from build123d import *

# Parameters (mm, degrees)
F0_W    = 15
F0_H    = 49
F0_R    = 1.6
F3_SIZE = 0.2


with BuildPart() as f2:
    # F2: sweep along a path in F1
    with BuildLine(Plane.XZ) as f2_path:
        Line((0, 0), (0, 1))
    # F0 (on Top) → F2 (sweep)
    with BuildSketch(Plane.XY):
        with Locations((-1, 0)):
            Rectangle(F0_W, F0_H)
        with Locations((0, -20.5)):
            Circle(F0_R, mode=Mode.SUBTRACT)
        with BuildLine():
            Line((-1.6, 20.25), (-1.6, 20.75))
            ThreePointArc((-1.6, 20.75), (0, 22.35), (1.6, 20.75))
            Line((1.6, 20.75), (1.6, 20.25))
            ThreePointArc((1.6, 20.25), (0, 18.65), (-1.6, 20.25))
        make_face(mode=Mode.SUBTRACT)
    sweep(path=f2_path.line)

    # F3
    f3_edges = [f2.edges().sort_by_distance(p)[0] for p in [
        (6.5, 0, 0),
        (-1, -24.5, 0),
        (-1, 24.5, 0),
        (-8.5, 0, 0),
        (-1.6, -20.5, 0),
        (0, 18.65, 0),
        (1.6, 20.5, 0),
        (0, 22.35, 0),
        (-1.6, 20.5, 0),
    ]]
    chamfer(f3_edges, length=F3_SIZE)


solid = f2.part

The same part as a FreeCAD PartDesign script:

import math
import FreeCAD as App
import Part
import Sketcher
Q = App.Units.Quantity


def edges_at(feature, points):
    """Names of the edges that pass closest to the given points."""
    edges = feature.Shape.Edges
    near = lambda p: min(range(len(edges)), key=lambda i: edges[i].distToShape(Part.Vertex(*p))[0])
    return sorted({f"Edge{near(p) + 1}" for p in points})


def add_polygon(sketch, points):
    """Adds a closed chain of lines whose ends are joined by coincident constraints."""
    first, n = sketch.GeometryCount, len(points)
    for a, b in zip(points, points[1:] + points[:1]):
        sketch.addGeometry(Part.LineSegment(App.Vector(*a, 0), App.Vector(*b, 0)), False)
    for i in range(n):
        sketch.addConstraint(Sketcher.Constraint("Coincident", first + i, 2, first + (i + 1) % n, 1))

doc = App.newDocument("Part")
body = doc.addObject("PartDesign::Body", "Body")

# Sketch on XY plane
sketch1 = body.newObject("Sketcher::SketchObject", "Sketch")
sketch1.AttachmentSupport = (doc.getObject("XY_Plane"), [""])
sketch1.MapMode = "FlatFace"
add_polygon(sketch1, [(-8.5, 24.5), (-8.5, -24.5), (6.5, -24.5), (6.5, 24.5)])  # lines 0-3
sketch1.addGeometry(Part.Circle(App.Vector(0, -20.5, 0), App.Vector(0, 0, 1), 1.6), False)  # 4
sketch1.addGeometry(Part.ArcOfCircle(Part.Circle(App.Vector(0, 20.2, 0), App.Vector(0, 0, 1), 1.6), math.radians(180), math.radians(360)), False)  # 5
sketch1.addGeometry(Part.LineSegment(App.Vector(-1.6, 20.2, 0), App.Vector(-1.6, 20.8, 0)), False)  # 6
sketch1.addGeometry(Part.ArcOfCircle(Part.Circle(App.Vector(0, 20.8, 0), App.Vector(0, 0, 1), 1.6), math.radians(0), math.radians(180)), False)  # 7
sketch1.addGeometry(Part.LineSegment(App.Vector(1.6, 20.8, 0), App.Vector(1.6, 20.2, 0)), False)  # 8
sketch1.addConstraint(Sketcher.Constraint("Tangent", 5, 1, 6, 1))
sketch1.addConstraint(Sketcher.Constraint("Tangent", 6, 2, 7, 2))
sketch1.addConstraint(Sketcher.Constraint("Tangent", 7, 1, 8, 1))
sketch1.addConstraint(Sketcher.Constraint("Tangent", 8, 2, 5, 2))
sketch1.addConstraint(Sketcher.Constraint("Vertical", 0))
sketch1.addConstraint(Sketcher.Constraint("Horizontal", 1))
sketch1.addConstraint(Sketcher.Constraint("Vertical", 2))
sketch1.addConstraint(Sketcher.Constraint("Horizontal", 3))
sketch1.addConstraint(Sketcher.Constraint("Vertical", 6))
sketch1.addConstraint(Sketcher.Constraint("Vertical", 8))
sketch1.addConstraint(Sketcher.Constraint("Equal", 4, 5))
sketch1.addConstraint(Sketcher.Constraint("PointOnObject", 4, 3, -2))
sketch1.addConstraint(Sketcher.Constraint("PointOnObject", 5, 3, -2))
sketch1.addConstraint(Sketcher.Constraint("Diameter", 4, Q("3.2 mm")))
sketch1.addConstraint(Sketcher.Constraint("DistanceX", 1, 1, 1, 2, Q("15 mm")))
sketch1.addConstraint(Sketcher.Constraint("DistanceY", 0, 2, 0, 1, Q("49 mm")))
sketch1.addConstraint(Sketcher.Constraint("DistanceY", 6, 1, 6, 2, Q("0.5 mm")))
sketch1.addConstraint(Sketcher.Constraint("DistanceY", 0, 2, 4, 3, Q("4 mm")))
sketch1.addConstraint(Sketcher.Constraint("DistanceY", 4, 3, -1, 1, Q("20.5 mm")))
sketch1.addConstraint(Sketcher.Constraint("DistanceX", 0, 2, -1, 1, Q("8.5 mm")))
sketch1.addConstraint(Sketcher.Constraint("DistanceY", -1, 1, 5, 3, Q("20.25 mm")))

# Sketch on XZ plane
sketch2 = body.newObject("Sketcher::SketchObject", "Sketch001")
sketch2.AttachmentSupport = (doc.getObject("XZ_Plane"), [""])
sketch2.MapMode = "FlatFace"
sketch2.addGeometry(Part.LineSegment(App.Vector(0, 0, 0), App.Vector(0, 1, 0)), False)
sketch2.addConstraint(Sketcher.Constraint("Vertical", 0))
sketch2.addConstraint(Sketcher.Constraint("Coincident", 0, 1, -1, 1))
sketch2.addConstraint(Sketcher.Constraint("DistanceY", 0, 1, 0, 2, Q("1 mm")))
doc.recompute()

additivepipe = body.newObject("PartDesign::AdditivePipe", "AdditivePipe")
additivepipe.Profile = sketch1
additivepipe.Spine = (sketch2, ["Edge1"])
doc.recompute()

chamfer = body.newObject("PartDesign::Chamfer", "Chamfer")
chamfer.Base = (additivepipe, edges_at(additivepipe, [
    (6.5, 0, 0),
    (-1, -24.5, 0),
    (-1, 24.5, 0),
    (-8.5, 0, 0),
    (-1.6, -20.5, 0),
    (0, 18.65, 0),
    (1.6, 20.5, 0),
    (0, 22.35, 0),
    (-1.6, 20.5, 0),
]))
chamfer.Size = 0.2

doc.recompute()
